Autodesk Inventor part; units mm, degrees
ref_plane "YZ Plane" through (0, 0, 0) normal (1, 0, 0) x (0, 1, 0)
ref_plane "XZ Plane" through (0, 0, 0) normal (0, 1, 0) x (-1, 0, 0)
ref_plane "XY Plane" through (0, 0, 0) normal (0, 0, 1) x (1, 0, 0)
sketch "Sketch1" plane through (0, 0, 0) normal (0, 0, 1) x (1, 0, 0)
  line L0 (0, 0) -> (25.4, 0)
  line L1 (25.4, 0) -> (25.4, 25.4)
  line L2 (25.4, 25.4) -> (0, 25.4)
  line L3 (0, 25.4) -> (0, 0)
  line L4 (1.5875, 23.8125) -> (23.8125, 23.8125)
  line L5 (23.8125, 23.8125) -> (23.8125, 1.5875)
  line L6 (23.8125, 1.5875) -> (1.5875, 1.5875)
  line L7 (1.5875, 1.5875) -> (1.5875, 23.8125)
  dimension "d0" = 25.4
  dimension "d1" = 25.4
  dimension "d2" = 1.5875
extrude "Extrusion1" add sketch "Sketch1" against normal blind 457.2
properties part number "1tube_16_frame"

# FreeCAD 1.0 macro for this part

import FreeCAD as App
import Part
import Sketcher
from FreeCAD import Vector
Q = App.Units.Quantity


def add_polygon(sketch, points):
    """Adds a closed chain of lines whose ends are joined by coincident constraints."""
    first, n = sketch.GeometryCount, len(points)
    for a, b in zip(points, points[1:] + points[:1]):
        sketch.addGeometry(Part.LineSegment(App.Vector(*a, 0), App.Vector(*b, 0)), False)
    for i in range(n):
        sketch.addConstraint(Sketcher.Constraint("Coincident", first + i, 2, first + (i + 1) % n, 1))

doc = App.newDocument("Part")
params = doc.addObject("Spreadsheet::Sheet", "Params")
for row, (alias, value) in enumerate([
    ("sketch1_width", "1 in"),
    ("pad1_length", "18 in"),
], start=1):
    params.set(f"A{row}", alias)
    params.set(f"B{row}", "=" + value)
    params.setAlias(f"B{row}", alias)

body = doc.addObject("PartDesign::Body", "Body")

sketch1 = body.newObject("Sketcher::SketchObject", "Sketch")
sketch1.AttachmentSupport = (doc.getObject("XY_Plane"), [""])
sketch1.MapMode = "FlatFace"
add_polygon(sketch1, [(0, 25.4), (0, 0), (25.4, 0), (25.4, 25.4)])
add_polygon(sketch1, [(1.5875, 1.5875), (1.5875, 23.8125), (23.8125, 23.8125), (23.8125, 1.5875)])
sketch1.addConstraint([
    Sketcher.Constraint("Vertical", 0),
    Sketcher.Constraint("Horizontal", 1),
    Sketcher.Constraint("Vertical", 2),
    Sketcher.Constraint("Horizontal", 3),
    Sketcher.Constraint("Vertical", 4),
    Sketcher.Constraint("Horizontal", 5),
    Sketcher.Constraint("Vertical", 6),
    Sketcher.Constraint("Horizontal", 7),
    Sketcher.Constraint("Coincident", 0, 2, -1, 1),
    Sketcher.Constraint("Equal", 3, 0),
    Sketcher.Constraint("Equal", 7, 4),
    Sketcher.Constraint("DistanceX", 1, 1, 1, 2, Q("1 in")),
    Sketcher.Constraint("DistanceX", -1, 1, 4, 2, Q("0.0625 in")),
    Sketcher.Constraint("DistanceY", -1, 1, 6, 2, Q("0.0625 in")),
    Sketcher.Constraint("DistanceY", 4, 2, 3, 2, Q("0.0625 in")),
])
sketch1.setExpression("Constraints[19]", "Params.sketch1_width")
pad1 = body.newObject("PartDesign::Pad", "Pad")
pad1.Profile = sketch1
pad1.setExpression("Length", "Params.pad1_length")
pad1.Reversed = True

doc.recompute()
